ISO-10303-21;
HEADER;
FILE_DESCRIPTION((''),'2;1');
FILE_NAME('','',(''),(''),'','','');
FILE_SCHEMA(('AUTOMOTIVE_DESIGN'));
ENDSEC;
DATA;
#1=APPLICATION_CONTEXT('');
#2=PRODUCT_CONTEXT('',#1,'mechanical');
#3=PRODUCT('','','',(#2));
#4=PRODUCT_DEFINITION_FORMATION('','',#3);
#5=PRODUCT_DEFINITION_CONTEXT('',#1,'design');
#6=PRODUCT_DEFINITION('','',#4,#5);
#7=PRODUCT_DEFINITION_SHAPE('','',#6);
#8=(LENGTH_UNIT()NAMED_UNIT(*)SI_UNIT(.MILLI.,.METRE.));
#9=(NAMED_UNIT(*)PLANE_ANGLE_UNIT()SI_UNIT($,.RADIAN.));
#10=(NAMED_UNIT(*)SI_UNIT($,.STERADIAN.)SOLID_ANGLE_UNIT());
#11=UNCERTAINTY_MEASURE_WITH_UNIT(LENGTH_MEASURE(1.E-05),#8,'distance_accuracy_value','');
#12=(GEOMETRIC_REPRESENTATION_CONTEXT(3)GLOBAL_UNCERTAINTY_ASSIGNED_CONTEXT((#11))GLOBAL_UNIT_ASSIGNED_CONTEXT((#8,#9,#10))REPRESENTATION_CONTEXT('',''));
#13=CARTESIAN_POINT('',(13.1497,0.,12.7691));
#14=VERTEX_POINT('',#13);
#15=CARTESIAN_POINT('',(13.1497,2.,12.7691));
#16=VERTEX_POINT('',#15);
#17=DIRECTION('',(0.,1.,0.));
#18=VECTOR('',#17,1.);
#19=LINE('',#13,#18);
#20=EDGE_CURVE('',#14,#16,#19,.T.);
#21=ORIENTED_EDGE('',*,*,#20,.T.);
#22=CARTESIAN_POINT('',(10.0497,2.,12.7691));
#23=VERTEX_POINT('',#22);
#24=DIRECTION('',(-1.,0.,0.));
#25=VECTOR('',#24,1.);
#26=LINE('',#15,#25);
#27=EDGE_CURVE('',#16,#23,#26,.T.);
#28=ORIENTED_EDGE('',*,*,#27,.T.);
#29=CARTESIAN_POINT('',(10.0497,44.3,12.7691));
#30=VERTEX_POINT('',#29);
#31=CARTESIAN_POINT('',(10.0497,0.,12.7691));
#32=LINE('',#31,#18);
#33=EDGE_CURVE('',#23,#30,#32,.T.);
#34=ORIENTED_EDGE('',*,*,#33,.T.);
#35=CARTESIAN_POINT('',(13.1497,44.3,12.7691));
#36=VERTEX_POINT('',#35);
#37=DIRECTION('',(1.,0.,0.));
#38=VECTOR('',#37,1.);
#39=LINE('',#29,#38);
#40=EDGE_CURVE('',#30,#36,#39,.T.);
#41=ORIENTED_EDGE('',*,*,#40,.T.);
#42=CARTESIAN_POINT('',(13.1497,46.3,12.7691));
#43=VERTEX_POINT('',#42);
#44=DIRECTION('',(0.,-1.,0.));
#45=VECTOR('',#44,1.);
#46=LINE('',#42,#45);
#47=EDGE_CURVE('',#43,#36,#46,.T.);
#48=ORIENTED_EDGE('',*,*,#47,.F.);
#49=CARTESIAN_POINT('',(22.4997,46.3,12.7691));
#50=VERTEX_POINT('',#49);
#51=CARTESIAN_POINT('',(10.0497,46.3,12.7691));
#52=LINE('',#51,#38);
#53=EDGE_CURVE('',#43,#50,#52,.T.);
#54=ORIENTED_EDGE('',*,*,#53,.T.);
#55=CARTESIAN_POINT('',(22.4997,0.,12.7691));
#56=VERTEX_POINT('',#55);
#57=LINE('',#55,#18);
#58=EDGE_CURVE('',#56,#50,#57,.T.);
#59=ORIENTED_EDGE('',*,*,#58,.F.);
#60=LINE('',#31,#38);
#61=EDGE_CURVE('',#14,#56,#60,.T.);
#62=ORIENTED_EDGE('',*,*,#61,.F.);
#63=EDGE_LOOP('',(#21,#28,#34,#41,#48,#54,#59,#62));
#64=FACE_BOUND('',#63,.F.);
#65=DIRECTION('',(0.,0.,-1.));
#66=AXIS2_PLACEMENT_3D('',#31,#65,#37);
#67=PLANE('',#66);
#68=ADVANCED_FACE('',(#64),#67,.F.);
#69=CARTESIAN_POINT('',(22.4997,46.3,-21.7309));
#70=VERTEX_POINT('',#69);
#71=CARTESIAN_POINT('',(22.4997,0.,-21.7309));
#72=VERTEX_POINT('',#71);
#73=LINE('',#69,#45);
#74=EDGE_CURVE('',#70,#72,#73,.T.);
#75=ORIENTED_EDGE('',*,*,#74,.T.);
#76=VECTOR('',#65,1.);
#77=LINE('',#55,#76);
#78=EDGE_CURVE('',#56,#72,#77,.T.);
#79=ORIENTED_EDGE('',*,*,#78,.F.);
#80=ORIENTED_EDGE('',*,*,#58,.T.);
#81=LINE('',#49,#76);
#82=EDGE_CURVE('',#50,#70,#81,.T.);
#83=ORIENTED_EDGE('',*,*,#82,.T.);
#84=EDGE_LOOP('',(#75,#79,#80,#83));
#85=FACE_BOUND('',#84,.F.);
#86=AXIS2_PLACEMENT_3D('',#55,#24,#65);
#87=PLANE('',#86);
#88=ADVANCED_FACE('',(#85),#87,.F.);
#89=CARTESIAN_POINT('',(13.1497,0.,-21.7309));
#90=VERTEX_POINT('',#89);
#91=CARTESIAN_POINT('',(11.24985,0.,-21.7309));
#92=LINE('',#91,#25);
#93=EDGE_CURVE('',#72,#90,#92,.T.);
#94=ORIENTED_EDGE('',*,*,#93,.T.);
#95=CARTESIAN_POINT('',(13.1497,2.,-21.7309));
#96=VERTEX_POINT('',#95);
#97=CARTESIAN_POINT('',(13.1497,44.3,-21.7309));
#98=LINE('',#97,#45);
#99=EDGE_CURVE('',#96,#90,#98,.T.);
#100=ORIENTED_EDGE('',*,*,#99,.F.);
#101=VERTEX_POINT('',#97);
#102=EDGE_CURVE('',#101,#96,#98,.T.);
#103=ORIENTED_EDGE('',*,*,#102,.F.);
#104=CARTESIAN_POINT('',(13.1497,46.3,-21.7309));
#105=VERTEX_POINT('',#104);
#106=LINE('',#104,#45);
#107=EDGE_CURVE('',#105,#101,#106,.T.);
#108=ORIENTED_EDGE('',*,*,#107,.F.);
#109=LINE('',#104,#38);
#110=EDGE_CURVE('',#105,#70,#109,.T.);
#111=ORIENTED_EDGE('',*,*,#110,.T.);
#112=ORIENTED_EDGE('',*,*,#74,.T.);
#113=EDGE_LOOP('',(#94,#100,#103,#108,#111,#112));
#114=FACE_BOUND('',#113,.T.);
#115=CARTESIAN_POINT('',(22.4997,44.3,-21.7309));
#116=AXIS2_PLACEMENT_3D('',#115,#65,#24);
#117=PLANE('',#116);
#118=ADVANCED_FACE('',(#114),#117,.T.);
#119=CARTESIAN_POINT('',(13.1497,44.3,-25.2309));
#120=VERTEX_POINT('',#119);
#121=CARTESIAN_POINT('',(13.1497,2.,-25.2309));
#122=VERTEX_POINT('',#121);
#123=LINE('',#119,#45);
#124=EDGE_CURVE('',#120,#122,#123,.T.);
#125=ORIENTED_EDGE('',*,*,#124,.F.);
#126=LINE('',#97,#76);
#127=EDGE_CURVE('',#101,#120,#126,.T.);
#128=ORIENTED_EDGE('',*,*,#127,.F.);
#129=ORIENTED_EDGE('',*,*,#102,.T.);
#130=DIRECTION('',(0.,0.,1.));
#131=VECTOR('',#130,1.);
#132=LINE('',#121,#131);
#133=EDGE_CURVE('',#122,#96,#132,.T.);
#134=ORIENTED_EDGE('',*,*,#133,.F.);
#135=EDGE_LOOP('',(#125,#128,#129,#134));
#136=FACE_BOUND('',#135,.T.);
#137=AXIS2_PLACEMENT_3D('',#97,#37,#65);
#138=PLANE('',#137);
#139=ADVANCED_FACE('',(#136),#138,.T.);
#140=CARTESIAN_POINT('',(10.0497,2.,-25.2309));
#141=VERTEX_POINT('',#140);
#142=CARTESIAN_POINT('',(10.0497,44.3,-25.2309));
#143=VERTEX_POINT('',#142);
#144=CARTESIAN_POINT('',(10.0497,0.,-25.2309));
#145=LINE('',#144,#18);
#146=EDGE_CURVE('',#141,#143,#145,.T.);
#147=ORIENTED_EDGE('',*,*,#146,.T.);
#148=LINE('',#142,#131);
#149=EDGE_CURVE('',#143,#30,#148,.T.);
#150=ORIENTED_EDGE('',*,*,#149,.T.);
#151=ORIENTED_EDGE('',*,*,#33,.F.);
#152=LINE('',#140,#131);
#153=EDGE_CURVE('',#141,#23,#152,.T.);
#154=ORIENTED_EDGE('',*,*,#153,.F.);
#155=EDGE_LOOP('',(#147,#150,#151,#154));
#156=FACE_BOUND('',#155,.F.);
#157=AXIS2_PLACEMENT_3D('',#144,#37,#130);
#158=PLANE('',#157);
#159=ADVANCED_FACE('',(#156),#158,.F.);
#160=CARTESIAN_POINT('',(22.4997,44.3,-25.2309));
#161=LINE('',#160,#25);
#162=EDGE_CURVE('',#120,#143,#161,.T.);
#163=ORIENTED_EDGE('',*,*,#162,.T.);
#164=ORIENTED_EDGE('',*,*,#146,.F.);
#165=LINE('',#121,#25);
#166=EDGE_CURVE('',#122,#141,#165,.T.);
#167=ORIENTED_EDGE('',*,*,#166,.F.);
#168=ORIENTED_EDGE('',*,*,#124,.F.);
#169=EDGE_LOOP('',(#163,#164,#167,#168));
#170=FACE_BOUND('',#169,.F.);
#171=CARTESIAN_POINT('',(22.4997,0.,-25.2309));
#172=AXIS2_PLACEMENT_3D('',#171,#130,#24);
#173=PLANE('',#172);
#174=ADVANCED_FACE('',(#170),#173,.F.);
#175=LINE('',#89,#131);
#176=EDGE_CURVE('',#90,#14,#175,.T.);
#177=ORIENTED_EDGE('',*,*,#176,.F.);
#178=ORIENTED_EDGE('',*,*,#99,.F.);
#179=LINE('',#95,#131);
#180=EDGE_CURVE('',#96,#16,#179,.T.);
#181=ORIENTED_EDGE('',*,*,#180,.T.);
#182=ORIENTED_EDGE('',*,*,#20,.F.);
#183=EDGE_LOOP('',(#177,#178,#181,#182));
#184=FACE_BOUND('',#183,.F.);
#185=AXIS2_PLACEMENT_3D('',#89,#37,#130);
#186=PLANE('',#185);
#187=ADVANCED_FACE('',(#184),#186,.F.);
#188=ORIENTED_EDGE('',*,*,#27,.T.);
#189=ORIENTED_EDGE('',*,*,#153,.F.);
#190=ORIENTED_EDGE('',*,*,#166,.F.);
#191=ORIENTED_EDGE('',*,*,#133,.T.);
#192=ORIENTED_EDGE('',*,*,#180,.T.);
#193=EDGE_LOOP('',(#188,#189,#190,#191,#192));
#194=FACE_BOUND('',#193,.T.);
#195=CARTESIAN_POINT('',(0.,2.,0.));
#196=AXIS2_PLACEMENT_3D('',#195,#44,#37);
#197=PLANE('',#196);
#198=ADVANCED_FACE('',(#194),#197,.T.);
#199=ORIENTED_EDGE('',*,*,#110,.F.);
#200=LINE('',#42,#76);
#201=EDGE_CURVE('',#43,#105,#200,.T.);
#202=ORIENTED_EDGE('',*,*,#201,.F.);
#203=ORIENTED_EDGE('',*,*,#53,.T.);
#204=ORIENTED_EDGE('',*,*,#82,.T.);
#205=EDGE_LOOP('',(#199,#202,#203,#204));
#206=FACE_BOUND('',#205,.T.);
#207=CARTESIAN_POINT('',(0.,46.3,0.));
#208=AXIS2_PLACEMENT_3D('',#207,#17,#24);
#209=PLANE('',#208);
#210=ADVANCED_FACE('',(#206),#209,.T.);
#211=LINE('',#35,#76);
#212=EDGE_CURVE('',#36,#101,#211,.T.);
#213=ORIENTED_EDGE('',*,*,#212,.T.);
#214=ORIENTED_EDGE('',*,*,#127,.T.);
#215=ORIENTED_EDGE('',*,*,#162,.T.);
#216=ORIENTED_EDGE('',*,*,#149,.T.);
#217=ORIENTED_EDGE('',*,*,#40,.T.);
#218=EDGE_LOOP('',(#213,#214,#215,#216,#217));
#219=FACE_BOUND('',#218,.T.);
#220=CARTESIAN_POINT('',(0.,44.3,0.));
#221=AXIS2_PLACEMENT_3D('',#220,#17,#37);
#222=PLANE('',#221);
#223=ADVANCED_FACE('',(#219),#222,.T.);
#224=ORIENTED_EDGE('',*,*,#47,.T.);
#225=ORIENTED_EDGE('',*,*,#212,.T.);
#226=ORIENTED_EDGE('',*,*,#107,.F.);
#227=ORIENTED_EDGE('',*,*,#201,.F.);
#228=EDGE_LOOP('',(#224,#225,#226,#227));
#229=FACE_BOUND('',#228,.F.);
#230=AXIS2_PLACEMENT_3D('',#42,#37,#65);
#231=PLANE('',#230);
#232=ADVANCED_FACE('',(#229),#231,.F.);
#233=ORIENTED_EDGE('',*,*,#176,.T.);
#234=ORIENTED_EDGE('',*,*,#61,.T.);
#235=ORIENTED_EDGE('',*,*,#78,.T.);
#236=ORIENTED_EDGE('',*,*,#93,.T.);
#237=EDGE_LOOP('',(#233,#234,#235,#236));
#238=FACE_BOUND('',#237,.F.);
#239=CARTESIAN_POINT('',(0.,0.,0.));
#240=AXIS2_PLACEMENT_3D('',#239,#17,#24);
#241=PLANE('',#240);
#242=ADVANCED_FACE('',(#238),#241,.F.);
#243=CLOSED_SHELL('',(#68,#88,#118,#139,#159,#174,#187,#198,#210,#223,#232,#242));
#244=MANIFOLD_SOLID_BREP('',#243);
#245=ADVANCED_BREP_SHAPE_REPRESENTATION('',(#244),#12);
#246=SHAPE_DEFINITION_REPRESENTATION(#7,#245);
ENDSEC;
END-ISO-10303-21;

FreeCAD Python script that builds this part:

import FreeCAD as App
import Part
import Sketcher
from FreeCAD import Vector
Q = App.Units.Quantity


def add_polygon(sketch, points):
    """Adds a closed chain of lines whose ends are joined by coincident constraints."""
    first, n = sketch.GeometryCount, len(points)
    for a, b in zip(points, points[1:] + points[:1]):
        sketch.addGeometry(Part.LineSegment(App.Vector(*a, 0), App.Vector(*b, 0)), False)
    for i in range(n):
        sketch.addConstraint(Sketcher.Constraint("Coincident", first + i, 2, first + (i + 1) % n, 1))

doc = App.newDocument("Part")
params = doc.addObject("Spreadsheet::Sheet", "Params")
for row, (alias, value) in enumerate([
    ("sketch1_height", "38 mm"),
    ("sketch1_width", "12.45 mm"),
    ("pad1_length", "46.3 mm"),
    ("sketch2_height", "38 mm"),
    ("sketch2_width", "3.1 mm"),
    ("sketch2_height2", "34.5 mm"),
    ("sketch2_width2", "9.35 mm"),
    ("pocket1_length", "2 mm"),
    ("sketch3_height", "3.5 mm"),
    ("sketch3_width", "9.35 mm"),
    ("pocket2_length", "44.8625 mm"),
    ("sketch4_height", "38 mm"),
    ("sketch4_width", "3.1 mm"),
    ("pocket3_length", "2 mm"),
], start=1):
    params.set(f"A{row}", alias)
    params.set(f"B{row}", "=" + value)
    params.setAlias(f"B{row}", alias)

body = doc.addObject("PartDesign::Body", "Body")

sketch1 = body.newObject("Sketcher::SketchObject", "Sketch")
sketch1.AttachmentSupport = (doc.getObject("XZ_Plane"), [""])
sketch1.MapMode = "FlatFace"
add_polygon(sketch1, [(10.0497, -25.2309), (10.0497, 12.7691), (22.4997, 12.7691), (22.4997, -25.2309)])
sketch1.addConstraint([
    Sketcher.Constraint("Vertical", 0),
    Sketcher.Constraint("Horizontal", 1),
    Sketcher.Constraint("Vertical", 2),
    Sketcher.Constraint("Horizontal", 3),
    Sketcher.Constraint("DistanceY", 0, 1, 0, 2, Q("38 mm")),
    Sketcher.Constraint("DistanceX", 1, 1, 1, 2, Q("12.45 mm")),
    Sketcher.Constraint("DistanceY", -1, 1, 0, 2, Q("12.769 mm")),
    Sketcher.Constraint("DistanceX", -1, 1, 0, 2, Q("10.0497 mm")),
])
sketch1.setExpression("Constraints[8]", "Params.sketch1_height")
sketch1.setExpression("Constraints[9]", "Params.sketch1_width")
pad1 = body.newObject("PartDesign::Pad", "Pad")
pad1.Profile = sketch1
pad1.setExpression("Length", "Params.pad1_length")
pad1.Reversed = True

sketch2 = body.newObject("Sketcher::SketchObject", "Sketch001")
sketch2.AttachmentSupport = (doc.getObject("XZ_Plane"), [""])
sketch2.MapMode = "FlatFace"
sketch2.AttachmentOffset = App.Placement(Vector(0, 0, -46.3), App.Rotation())
add_polygon(sketch2, [(10.0497, 12.7691), (13.1497, 12.7691), (13.1497, -21.7309), (22.4997, -21.7309), (22.4997, -25.2309), (10.0497, -25.2309)])
sketch2.addConstraint([
    Sketcher.Constraint("Horizontal", 0),
    Sketcher.Constraint("Vertical", 1),
    Sketcher.Constraint("Horizontal", 2),
    Sketcher.Constraint("Vertical", 3),
    Sketcher.Constraint("Horizontal", 4),
    Sketcher.Constraint("Vertical", 5),
    Sketcher.Constraint("DistanceY", 5, 1, 5, 2, Q("38 mm")),
    Sketcher.Constraint("DistanceX", 0, 1, 0, 2, Q("3.1 mm")),
    Sketcher.Constraint("DistanceY", 1, 2, 1, 1, Q("34.5 mm")),
    Sketcher.Constraint("DistanceX", 2, 1, 2, 2, Q("9.35 mm")),
    Sketcher.Constraint("DistanceY", -1, 1, 0, 2, Q("12.769 mm")),
    Sketcher.Constraint("DistanceX", -1, 1, 0, 2, Q("13.1497 mm")),
])
sketch2.setExpression("Constraints[12]", "Params.sketch2_height")
sketch2.setExpression("Constraints[13]", "Params.sketch2_width")
sketch2.setExpression("Constraints[14]", "Params.sketch2_height2")
sketch2.setExpression("Constraints[15]", "Params.sketch2_width2")
pocket1 = body.newObject("PartDesign::Pocket", "Pocket")
pocket1.Profile = sketch2
pocket1.setExpression("Length", "Params.pocket1_length")
pocket1.Reversed = True

sketch3 = body.newObject("Sketcher::SketchObject", "Sketch002")
sketch3.AttachmentSupport = (doc.getObject("XZ_Plane"), [""])
sketch3.MapMode = "FlatFace"
sketch3.AttachmentOffset = App.Placement(Vector(0, 0, -44.3), App.Rotation())
add_polygon(sketch3, [(13.1497, -21.7309), (22.4997, -21.7309), (22.4997, -25.2309), (13.1497, -25.2309)])
sketch3.addConstraint([
    Sketcher.Constraint("Horizontal", 0),
    Sketcher.Constraint("Vertical", 1),
    Sketcher.Constraint("Horizontal", 2),
    Sketcher.Constraint("Vertical", 3),
    Sketcher.Constraint("DistanceY", 1, 2, 1, 1, Q("3.5 mm")),
    Sketcher.Constraint("DistanceX", 0, 1, 0, 2, Q("9.35 mm")),
    Sketcher.Constraint("DistanceY", 0, 2, -1, 1, Q("21.731 mm")),
    Sketcher.Constraint("DistanceX", -1, 1, 0, 2, Q("22.4997 mm")),
])
sketch3.setExpression("Constraints[8]", "Params.sketch3_height")
sketch3.setExpression("Constraints[9]", "Params.sketch3_width")
pocket2 = body.newObject("PartDesign::Pocket", "Pocket001")
pocket2.Profile = sketch3
pocket2.setExpression("Length", "Params.pocket2_length")
pocket2.Reversed = True

sketch4 = body.newObject("Sketcher::SketchObject", "Sketch003")
sketch4.AttachmentSupport = (doc.getObject("XZ_Plane"), [""])
sketch4.MapMode = "FlatFace"
add_polygon(sketch4, [(10.0497, 12.7691), (10.0497, -25.2309), (13.1497, -25.2309), (13.1497, 12.7691)])
sketch4.addConstraint([
    Sketcher.Constraint("Vertical", 0),
    Sketcher.Constraint("Horizontal", 1),
    Sketcher.Constraint("Vertical", 2),
    Sketcher.Constraint("Horizontal", 3),
    Sketcher.Constraint("DistanceY", 0, 2, 0, 1, Q("38 mm")),
    Sketcher.Constraint("DistanceX", 1, 1, 1, 2, Q("3.1 mm")),
    Sketcher.Constraint("DistanceY", 0, 2, -1, 1, Q("25.231 mm")),
    Sketcher.Constraint("DistanceX", -1, 1, 0, 2, Q("10.0497 mm")),
])
sketch4.setExpression("Constraints[8]", "Params.sketch4_height")
sketch4.setExpression("Constraints[9]", "Params.sketch4_width")
pocket3 = body.newObject("PartDesign::Pocket", "Pocket002")
pocket3.Profile = sketch4
pocket3.setExpression("Length", "Params.pocket3_length")

doc.recompute()
